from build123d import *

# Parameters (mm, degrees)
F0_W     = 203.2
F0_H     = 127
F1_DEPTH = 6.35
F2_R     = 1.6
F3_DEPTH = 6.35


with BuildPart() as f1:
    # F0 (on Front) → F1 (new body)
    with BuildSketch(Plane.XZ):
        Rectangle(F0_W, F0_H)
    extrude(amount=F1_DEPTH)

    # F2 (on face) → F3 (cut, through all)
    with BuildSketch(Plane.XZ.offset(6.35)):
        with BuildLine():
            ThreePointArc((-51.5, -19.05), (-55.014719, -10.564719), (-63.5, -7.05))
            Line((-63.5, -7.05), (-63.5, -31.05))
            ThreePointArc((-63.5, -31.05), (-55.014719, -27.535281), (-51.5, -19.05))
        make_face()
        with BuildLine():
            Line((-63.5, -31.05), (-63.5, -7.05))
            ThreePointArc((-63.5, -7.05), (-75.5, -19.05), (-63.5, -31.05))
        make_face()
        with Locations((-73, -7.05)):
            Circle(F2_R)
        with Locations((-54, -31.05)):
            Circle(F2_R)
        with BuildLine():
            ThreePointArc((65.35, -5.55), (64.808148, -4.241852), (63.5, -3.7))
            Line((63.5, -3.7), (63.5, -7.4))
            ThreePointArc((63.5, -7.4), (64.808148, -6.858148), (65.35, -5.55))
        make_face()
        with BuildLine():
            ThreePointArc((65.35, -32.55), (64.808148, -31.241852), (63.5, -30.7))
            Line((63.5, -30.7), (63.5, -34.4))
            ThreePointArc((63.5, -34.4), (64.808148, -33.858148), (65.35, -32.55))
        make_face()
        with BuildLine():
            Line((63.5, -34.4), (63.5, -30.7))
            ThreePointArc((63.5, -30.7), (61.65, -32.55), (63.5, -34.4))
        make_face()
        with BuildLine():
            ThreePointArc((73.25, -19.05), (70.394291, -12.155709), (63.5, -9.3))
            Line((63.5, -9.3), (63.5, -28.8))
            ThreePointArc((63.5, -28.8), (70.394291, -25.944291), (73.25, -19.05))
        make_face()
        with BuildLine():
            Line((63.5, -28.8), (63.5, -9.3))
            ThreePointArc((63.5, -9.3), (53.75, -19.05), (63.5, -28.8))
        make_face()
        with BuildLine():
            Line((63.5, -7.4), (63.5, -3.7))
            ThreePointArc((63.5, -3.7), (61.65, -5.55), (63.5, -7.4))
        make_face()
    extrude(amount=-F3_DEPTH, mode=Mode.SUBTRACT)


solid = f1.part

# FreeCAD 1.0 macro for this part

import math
import FreeCAD as App
import Part
import Sketcher
from FreeCAD import Vector


def add_polygon(sketch, points):
    """Adds a closed chain of lines whose ends are joined by coincident constraints."""
    first, n = sketch.GeometryCount, len(points)
    for a, b in zip(points, points[1:] + points[:1]):
        sketch.addGeometry(Part.LineSegment(App.Vector(*a, 0), App.Vector(*b, 0)), False)
    for i in range(n):
        sketch.addConstraint(Sketcher.Constraint("Coincident", first + i, 2, first + (i + 1) % n, 1))

doc = App.newDocument("Part")
body = doc.addObject("PartDesign::Body", "Body")

sketch1 = body.newObject("Sketcher::SketchObject", "Sketch")
sketch1.AttachmentSupport = (doc.getObject("XZ_Plane"), [""])
sketch1.MapMode = "FlatFace"
add_polygon(sketch1, [(-101.6, 63.5), (-101.6, -63.5), (101.6, -63.5), (101.6, 63.5)])
sketch1.addConstraint(Sketcher.Constraint("Vertical", 0))
sketch1.addConstraint(Sketcher.Constraint("Horizontal", 1))
sketch1.addConstraint(Sketcher.Constraint("Vertical", 2))
sketch1.addConstraint(Sketcher.Constraint("Horizontal", 3))
sketch1.addConstraint(Sketcher.Constraint("Symmetric", 0, 2, 2, 2, -1, 1))
sketch1.addConstraint(Sketcher.Constraint("DistanceY", 0, 2, 0, 1, 127.0))
sketch1.addConstraint(Sketcher.Constraint("DistanceX", 1, 1, 1, 2, 203.2))
pad1 = body.newObject("PartDesign::Pad", "Pad")
pad1.Profile = sketch1
pad1.Length = 6.35

sketch2 = body.newObject("Sketcher::SketchObject", "Sketch001")
sketch2.AttachmentSupport = (doc.getObject("XZ_Plane"), [""])
sketch2.MapMode = "FlatFace"
sketch2.AttachmentOffset = App.Placement(Vector(0, 0, 6.35), App.Rotation())
sketch2.addGeometry(Part.ArcOfCircle(Part.Circle(Vector(-63.500001, -19.050001, 0), Vector(0, 0, 1), 12.000001), math.radians(0.000006), math.radians(89.999994)), False)
sketch2.addGeometry(Part.ArcOfCircle(Part.Circle(Vector(-63.5, -19.05, 0), Vector(0, 0, 1), 12), math.radians(90), math.radians(270)), False)
sketch2.addGeometry(Part.ArcOfCircle(Part.Circle(Vector(-63.500001, -19.049999, 0), Vector(0, 0, 1), 12.000001), math.radians(-89.999994), math.radians(-0.000006)), False)
sketch2.addGeometry(Part.Circle(Vector(-73, -7.05, 0), Vector(0, 0, 1), 1.6), False)
sketch2.addGeometry(Part.Circle(Vector(-54, -31.05, 0), Vector(0, 0, 1), 1.6), False)
sketch2.addGeometry(Part.ArcOfCircle(Part.Circle(Vector(63.500002, -5.549998, 0), Vector(0, 0, 1), 1.849998), math.radians(-0.000048), math.radians(90.000048)), False)
sketch2.addGeometry(Part.ArcOfCircle(Part.Circle(Vector(63.5, -5.55, 0), Vector(0, 0, 1), 1.85), math.radians(90), math.radians(270)), False)
sketch2.addGeometry(Part.ArcOfCircle(Part.Circle(Vector(63.500002, -5.550002, 0), Vector(0, 0, 1), 1.849998), math.radians(-90.000048), math.radians(0.000048)), False)
sketch2.addGeometry(Part.ArcOfCircle(Part.Circle(Vector(63.500002, -32.549998, 0), Vector(0, 0, 1), 1.849998), math.radians(-0.000048), math.radians(90.000048)), False)
sketch2.addGeometry(Part.ArcOfCircle(Part.Circle(Vector(63.5, -32.55, 0), Vector(0, 0, 1), 1.85), math.radians(90), math.radians(270)), False)
sketch2.addGeometry(Part.ArcOfCircle(Part.Circle(Vector(63.500002, -32.550002, 0), Vector(0, 0, 1), 1.849998), math.radians(-90.000048), math.radians(0.000048)), False)
sketch2.addGeometry(Part.ArcOfCircle(Part.Circle(Vector(63.5, -19.05, 0), Vector(0, 0, 1), 9.75), math.radians(0.000002), math.radians(89.999998)), False)
sketch2.addGeometry(Part.ArcOfCircle(Part.Circle(Vector(63.5, -19.05, 0), Vector(0, 0, 1), 9.75), math.radians(90), math.radians(270)), False)
sketch2.addGeometry(Part.ArcOfCircle(Part.Circle(Vector(63.5, -19.05, 0), Vector(0, 0, 1), 9.75), math.radians(-89.999998), math.radians(-0.000002)), False)
sketch2.addConstraint(Sketcher.Constraint("Tangent", 0, 2, 1, 1))
sketch2.addConstraint(Sketcher.Constraint("Tangent", 1, 2, 2, 1))
sketch2.addConstraint(Sketcher.Constraint("Tangent", 2, 2, 0, 1))
sketch2.addConstraint(Sketcher.Constraint("Tangent", 5, 2, 6, 1))
sketch2.addConstraint(Sketcher.Constraint("Tangent", 6, 2, 7, 1))
sketch2.addConstraint(Sketcher.Constraint("Tangent", 7, 2, 5, 1))
sketch2.addConstraint(Sketcher.Constraint("Tangent", 8, 2, 9, 1))
sketch2.addConstraint(Sketcher.Constraint("Tangent", 9, 2, 10, 1))
sketch2.addConstraint(Sketcher.Constraint("Tangent", 10, 2, 8, 1))
sketch2.addConstraint(Sketcher.Constraint("Tangent", 11, 2, 12, 1))
sketch2.addConstraint(Sketcher.Constraint("Tangent", 12, 2, 13, 1))
sketch2.addConstraint(Sketcher.Constraint("Tangent", 13, 2, 11, 1))
sketch2.addConstraint(Sketcher.Constraint("Equal", 3, 4))
sketch2.addConstraint(Sketcher.Constraint("Equal", 7, 8))
sketch2.addConstraint(Sketcher.Constraint("Symmetric", 0, 3, 11, 3, -2))
sketch2.addConstraint(Sketcher.Constraint("Horizontal", 3, 3, 0, 2))
sketch2.addConstraint(Sketcher.Constraint("Horizontal", 4, 3, 1, 2))
sketch2.addConstraint(Sketcher.Constraint("Horizontal", 13, 3, 2, 2))
sketch2.addConstraint(Sketcher.Constraint("Horizontal", 6, 3, 7, 2))
sketch2.addConstraint(Sketcher.Constraint("Horizontal", 9, 3, 10, 2))
sketch2.addConstraint(Sketcher.Constraint("Horizontal", 2, 2, 13, 2))
sketch2.addConstraint(Sketcher.Constraint("Vertical", 7, 3, 8, 3))
sketch2.addConstraint(Sketcher.Constraint("Vertical", 10, 3, 11, 3))
sketch2.addConstraint(Sketcher.Constraint("Vertical", 2, 3, 0, 2))
sketch2.addConstraint(Sketcher.Constraint("Vertical", 0, 2, 1, 2))
sketch2.addConstraint(Sketcher.Constraint("Vertical", 13, 3, 5, 2))
sketch2.addConstraint(Sketcher.Constraint("Vertical", 5, 2, 6, 2))
sketch2.addConstraint(Sketcher.Constraint("Vertical", 6, 2, 8, 2))
sketch2.addConstraint(Sketcher.Constraint("Vertical", 8, 2, 9, 2))
sketch2.addConstraint(Sketcher.Constraint("Vertical", 9, 2, 11, 2))
sketch2.addConstraint(Sketcher.Constraint("Vertical", 11, 2, 12, 2))
sketch2.addConstraint(Sketcher.Constraint("Radius", 0, 12.000001))
sketch2.addConstraint(Sketcher.Constraint("Diameter", 3, 3.2))
sketch2.addConstraint(Sketcher.Constraint("Radius", 5, 1.849998))
sketch2.addConstraint(Sketcher.Constraint("Radius", 11, 9.75))
sketch2.addConstraint(Sketcher.Constraint("DistanceX", 3, 3, -1, 1, 73.0))
sketch2.addConstraint(Sketcher.Constraint("DistanceX", 4, 3, -1, 1, 54.0))
sketch2.addConstraint(Sketcher.Constraint("DistanceX", 1, 3, 5, 3, 127.000002))
sketch2.addConstraint(Sketcher.Constraint("DistanceY", 8, 3, 6, 3, 26.999998))
sketch2.addConstraint(Sketcher.Constraint("DistanceY", 5, 2, -1, 1, 3.7))
sketch2.addConstraint(Sketcher.Constraint("DistanceY", 11, 2, -1, 1, 9.3))
pocket1 = body.newObject("PartDesign::Pocket", "Pocket")
pocket1.Profile = sketch2
pocket1.Type = "ThroughAll"

doc.recompute()
